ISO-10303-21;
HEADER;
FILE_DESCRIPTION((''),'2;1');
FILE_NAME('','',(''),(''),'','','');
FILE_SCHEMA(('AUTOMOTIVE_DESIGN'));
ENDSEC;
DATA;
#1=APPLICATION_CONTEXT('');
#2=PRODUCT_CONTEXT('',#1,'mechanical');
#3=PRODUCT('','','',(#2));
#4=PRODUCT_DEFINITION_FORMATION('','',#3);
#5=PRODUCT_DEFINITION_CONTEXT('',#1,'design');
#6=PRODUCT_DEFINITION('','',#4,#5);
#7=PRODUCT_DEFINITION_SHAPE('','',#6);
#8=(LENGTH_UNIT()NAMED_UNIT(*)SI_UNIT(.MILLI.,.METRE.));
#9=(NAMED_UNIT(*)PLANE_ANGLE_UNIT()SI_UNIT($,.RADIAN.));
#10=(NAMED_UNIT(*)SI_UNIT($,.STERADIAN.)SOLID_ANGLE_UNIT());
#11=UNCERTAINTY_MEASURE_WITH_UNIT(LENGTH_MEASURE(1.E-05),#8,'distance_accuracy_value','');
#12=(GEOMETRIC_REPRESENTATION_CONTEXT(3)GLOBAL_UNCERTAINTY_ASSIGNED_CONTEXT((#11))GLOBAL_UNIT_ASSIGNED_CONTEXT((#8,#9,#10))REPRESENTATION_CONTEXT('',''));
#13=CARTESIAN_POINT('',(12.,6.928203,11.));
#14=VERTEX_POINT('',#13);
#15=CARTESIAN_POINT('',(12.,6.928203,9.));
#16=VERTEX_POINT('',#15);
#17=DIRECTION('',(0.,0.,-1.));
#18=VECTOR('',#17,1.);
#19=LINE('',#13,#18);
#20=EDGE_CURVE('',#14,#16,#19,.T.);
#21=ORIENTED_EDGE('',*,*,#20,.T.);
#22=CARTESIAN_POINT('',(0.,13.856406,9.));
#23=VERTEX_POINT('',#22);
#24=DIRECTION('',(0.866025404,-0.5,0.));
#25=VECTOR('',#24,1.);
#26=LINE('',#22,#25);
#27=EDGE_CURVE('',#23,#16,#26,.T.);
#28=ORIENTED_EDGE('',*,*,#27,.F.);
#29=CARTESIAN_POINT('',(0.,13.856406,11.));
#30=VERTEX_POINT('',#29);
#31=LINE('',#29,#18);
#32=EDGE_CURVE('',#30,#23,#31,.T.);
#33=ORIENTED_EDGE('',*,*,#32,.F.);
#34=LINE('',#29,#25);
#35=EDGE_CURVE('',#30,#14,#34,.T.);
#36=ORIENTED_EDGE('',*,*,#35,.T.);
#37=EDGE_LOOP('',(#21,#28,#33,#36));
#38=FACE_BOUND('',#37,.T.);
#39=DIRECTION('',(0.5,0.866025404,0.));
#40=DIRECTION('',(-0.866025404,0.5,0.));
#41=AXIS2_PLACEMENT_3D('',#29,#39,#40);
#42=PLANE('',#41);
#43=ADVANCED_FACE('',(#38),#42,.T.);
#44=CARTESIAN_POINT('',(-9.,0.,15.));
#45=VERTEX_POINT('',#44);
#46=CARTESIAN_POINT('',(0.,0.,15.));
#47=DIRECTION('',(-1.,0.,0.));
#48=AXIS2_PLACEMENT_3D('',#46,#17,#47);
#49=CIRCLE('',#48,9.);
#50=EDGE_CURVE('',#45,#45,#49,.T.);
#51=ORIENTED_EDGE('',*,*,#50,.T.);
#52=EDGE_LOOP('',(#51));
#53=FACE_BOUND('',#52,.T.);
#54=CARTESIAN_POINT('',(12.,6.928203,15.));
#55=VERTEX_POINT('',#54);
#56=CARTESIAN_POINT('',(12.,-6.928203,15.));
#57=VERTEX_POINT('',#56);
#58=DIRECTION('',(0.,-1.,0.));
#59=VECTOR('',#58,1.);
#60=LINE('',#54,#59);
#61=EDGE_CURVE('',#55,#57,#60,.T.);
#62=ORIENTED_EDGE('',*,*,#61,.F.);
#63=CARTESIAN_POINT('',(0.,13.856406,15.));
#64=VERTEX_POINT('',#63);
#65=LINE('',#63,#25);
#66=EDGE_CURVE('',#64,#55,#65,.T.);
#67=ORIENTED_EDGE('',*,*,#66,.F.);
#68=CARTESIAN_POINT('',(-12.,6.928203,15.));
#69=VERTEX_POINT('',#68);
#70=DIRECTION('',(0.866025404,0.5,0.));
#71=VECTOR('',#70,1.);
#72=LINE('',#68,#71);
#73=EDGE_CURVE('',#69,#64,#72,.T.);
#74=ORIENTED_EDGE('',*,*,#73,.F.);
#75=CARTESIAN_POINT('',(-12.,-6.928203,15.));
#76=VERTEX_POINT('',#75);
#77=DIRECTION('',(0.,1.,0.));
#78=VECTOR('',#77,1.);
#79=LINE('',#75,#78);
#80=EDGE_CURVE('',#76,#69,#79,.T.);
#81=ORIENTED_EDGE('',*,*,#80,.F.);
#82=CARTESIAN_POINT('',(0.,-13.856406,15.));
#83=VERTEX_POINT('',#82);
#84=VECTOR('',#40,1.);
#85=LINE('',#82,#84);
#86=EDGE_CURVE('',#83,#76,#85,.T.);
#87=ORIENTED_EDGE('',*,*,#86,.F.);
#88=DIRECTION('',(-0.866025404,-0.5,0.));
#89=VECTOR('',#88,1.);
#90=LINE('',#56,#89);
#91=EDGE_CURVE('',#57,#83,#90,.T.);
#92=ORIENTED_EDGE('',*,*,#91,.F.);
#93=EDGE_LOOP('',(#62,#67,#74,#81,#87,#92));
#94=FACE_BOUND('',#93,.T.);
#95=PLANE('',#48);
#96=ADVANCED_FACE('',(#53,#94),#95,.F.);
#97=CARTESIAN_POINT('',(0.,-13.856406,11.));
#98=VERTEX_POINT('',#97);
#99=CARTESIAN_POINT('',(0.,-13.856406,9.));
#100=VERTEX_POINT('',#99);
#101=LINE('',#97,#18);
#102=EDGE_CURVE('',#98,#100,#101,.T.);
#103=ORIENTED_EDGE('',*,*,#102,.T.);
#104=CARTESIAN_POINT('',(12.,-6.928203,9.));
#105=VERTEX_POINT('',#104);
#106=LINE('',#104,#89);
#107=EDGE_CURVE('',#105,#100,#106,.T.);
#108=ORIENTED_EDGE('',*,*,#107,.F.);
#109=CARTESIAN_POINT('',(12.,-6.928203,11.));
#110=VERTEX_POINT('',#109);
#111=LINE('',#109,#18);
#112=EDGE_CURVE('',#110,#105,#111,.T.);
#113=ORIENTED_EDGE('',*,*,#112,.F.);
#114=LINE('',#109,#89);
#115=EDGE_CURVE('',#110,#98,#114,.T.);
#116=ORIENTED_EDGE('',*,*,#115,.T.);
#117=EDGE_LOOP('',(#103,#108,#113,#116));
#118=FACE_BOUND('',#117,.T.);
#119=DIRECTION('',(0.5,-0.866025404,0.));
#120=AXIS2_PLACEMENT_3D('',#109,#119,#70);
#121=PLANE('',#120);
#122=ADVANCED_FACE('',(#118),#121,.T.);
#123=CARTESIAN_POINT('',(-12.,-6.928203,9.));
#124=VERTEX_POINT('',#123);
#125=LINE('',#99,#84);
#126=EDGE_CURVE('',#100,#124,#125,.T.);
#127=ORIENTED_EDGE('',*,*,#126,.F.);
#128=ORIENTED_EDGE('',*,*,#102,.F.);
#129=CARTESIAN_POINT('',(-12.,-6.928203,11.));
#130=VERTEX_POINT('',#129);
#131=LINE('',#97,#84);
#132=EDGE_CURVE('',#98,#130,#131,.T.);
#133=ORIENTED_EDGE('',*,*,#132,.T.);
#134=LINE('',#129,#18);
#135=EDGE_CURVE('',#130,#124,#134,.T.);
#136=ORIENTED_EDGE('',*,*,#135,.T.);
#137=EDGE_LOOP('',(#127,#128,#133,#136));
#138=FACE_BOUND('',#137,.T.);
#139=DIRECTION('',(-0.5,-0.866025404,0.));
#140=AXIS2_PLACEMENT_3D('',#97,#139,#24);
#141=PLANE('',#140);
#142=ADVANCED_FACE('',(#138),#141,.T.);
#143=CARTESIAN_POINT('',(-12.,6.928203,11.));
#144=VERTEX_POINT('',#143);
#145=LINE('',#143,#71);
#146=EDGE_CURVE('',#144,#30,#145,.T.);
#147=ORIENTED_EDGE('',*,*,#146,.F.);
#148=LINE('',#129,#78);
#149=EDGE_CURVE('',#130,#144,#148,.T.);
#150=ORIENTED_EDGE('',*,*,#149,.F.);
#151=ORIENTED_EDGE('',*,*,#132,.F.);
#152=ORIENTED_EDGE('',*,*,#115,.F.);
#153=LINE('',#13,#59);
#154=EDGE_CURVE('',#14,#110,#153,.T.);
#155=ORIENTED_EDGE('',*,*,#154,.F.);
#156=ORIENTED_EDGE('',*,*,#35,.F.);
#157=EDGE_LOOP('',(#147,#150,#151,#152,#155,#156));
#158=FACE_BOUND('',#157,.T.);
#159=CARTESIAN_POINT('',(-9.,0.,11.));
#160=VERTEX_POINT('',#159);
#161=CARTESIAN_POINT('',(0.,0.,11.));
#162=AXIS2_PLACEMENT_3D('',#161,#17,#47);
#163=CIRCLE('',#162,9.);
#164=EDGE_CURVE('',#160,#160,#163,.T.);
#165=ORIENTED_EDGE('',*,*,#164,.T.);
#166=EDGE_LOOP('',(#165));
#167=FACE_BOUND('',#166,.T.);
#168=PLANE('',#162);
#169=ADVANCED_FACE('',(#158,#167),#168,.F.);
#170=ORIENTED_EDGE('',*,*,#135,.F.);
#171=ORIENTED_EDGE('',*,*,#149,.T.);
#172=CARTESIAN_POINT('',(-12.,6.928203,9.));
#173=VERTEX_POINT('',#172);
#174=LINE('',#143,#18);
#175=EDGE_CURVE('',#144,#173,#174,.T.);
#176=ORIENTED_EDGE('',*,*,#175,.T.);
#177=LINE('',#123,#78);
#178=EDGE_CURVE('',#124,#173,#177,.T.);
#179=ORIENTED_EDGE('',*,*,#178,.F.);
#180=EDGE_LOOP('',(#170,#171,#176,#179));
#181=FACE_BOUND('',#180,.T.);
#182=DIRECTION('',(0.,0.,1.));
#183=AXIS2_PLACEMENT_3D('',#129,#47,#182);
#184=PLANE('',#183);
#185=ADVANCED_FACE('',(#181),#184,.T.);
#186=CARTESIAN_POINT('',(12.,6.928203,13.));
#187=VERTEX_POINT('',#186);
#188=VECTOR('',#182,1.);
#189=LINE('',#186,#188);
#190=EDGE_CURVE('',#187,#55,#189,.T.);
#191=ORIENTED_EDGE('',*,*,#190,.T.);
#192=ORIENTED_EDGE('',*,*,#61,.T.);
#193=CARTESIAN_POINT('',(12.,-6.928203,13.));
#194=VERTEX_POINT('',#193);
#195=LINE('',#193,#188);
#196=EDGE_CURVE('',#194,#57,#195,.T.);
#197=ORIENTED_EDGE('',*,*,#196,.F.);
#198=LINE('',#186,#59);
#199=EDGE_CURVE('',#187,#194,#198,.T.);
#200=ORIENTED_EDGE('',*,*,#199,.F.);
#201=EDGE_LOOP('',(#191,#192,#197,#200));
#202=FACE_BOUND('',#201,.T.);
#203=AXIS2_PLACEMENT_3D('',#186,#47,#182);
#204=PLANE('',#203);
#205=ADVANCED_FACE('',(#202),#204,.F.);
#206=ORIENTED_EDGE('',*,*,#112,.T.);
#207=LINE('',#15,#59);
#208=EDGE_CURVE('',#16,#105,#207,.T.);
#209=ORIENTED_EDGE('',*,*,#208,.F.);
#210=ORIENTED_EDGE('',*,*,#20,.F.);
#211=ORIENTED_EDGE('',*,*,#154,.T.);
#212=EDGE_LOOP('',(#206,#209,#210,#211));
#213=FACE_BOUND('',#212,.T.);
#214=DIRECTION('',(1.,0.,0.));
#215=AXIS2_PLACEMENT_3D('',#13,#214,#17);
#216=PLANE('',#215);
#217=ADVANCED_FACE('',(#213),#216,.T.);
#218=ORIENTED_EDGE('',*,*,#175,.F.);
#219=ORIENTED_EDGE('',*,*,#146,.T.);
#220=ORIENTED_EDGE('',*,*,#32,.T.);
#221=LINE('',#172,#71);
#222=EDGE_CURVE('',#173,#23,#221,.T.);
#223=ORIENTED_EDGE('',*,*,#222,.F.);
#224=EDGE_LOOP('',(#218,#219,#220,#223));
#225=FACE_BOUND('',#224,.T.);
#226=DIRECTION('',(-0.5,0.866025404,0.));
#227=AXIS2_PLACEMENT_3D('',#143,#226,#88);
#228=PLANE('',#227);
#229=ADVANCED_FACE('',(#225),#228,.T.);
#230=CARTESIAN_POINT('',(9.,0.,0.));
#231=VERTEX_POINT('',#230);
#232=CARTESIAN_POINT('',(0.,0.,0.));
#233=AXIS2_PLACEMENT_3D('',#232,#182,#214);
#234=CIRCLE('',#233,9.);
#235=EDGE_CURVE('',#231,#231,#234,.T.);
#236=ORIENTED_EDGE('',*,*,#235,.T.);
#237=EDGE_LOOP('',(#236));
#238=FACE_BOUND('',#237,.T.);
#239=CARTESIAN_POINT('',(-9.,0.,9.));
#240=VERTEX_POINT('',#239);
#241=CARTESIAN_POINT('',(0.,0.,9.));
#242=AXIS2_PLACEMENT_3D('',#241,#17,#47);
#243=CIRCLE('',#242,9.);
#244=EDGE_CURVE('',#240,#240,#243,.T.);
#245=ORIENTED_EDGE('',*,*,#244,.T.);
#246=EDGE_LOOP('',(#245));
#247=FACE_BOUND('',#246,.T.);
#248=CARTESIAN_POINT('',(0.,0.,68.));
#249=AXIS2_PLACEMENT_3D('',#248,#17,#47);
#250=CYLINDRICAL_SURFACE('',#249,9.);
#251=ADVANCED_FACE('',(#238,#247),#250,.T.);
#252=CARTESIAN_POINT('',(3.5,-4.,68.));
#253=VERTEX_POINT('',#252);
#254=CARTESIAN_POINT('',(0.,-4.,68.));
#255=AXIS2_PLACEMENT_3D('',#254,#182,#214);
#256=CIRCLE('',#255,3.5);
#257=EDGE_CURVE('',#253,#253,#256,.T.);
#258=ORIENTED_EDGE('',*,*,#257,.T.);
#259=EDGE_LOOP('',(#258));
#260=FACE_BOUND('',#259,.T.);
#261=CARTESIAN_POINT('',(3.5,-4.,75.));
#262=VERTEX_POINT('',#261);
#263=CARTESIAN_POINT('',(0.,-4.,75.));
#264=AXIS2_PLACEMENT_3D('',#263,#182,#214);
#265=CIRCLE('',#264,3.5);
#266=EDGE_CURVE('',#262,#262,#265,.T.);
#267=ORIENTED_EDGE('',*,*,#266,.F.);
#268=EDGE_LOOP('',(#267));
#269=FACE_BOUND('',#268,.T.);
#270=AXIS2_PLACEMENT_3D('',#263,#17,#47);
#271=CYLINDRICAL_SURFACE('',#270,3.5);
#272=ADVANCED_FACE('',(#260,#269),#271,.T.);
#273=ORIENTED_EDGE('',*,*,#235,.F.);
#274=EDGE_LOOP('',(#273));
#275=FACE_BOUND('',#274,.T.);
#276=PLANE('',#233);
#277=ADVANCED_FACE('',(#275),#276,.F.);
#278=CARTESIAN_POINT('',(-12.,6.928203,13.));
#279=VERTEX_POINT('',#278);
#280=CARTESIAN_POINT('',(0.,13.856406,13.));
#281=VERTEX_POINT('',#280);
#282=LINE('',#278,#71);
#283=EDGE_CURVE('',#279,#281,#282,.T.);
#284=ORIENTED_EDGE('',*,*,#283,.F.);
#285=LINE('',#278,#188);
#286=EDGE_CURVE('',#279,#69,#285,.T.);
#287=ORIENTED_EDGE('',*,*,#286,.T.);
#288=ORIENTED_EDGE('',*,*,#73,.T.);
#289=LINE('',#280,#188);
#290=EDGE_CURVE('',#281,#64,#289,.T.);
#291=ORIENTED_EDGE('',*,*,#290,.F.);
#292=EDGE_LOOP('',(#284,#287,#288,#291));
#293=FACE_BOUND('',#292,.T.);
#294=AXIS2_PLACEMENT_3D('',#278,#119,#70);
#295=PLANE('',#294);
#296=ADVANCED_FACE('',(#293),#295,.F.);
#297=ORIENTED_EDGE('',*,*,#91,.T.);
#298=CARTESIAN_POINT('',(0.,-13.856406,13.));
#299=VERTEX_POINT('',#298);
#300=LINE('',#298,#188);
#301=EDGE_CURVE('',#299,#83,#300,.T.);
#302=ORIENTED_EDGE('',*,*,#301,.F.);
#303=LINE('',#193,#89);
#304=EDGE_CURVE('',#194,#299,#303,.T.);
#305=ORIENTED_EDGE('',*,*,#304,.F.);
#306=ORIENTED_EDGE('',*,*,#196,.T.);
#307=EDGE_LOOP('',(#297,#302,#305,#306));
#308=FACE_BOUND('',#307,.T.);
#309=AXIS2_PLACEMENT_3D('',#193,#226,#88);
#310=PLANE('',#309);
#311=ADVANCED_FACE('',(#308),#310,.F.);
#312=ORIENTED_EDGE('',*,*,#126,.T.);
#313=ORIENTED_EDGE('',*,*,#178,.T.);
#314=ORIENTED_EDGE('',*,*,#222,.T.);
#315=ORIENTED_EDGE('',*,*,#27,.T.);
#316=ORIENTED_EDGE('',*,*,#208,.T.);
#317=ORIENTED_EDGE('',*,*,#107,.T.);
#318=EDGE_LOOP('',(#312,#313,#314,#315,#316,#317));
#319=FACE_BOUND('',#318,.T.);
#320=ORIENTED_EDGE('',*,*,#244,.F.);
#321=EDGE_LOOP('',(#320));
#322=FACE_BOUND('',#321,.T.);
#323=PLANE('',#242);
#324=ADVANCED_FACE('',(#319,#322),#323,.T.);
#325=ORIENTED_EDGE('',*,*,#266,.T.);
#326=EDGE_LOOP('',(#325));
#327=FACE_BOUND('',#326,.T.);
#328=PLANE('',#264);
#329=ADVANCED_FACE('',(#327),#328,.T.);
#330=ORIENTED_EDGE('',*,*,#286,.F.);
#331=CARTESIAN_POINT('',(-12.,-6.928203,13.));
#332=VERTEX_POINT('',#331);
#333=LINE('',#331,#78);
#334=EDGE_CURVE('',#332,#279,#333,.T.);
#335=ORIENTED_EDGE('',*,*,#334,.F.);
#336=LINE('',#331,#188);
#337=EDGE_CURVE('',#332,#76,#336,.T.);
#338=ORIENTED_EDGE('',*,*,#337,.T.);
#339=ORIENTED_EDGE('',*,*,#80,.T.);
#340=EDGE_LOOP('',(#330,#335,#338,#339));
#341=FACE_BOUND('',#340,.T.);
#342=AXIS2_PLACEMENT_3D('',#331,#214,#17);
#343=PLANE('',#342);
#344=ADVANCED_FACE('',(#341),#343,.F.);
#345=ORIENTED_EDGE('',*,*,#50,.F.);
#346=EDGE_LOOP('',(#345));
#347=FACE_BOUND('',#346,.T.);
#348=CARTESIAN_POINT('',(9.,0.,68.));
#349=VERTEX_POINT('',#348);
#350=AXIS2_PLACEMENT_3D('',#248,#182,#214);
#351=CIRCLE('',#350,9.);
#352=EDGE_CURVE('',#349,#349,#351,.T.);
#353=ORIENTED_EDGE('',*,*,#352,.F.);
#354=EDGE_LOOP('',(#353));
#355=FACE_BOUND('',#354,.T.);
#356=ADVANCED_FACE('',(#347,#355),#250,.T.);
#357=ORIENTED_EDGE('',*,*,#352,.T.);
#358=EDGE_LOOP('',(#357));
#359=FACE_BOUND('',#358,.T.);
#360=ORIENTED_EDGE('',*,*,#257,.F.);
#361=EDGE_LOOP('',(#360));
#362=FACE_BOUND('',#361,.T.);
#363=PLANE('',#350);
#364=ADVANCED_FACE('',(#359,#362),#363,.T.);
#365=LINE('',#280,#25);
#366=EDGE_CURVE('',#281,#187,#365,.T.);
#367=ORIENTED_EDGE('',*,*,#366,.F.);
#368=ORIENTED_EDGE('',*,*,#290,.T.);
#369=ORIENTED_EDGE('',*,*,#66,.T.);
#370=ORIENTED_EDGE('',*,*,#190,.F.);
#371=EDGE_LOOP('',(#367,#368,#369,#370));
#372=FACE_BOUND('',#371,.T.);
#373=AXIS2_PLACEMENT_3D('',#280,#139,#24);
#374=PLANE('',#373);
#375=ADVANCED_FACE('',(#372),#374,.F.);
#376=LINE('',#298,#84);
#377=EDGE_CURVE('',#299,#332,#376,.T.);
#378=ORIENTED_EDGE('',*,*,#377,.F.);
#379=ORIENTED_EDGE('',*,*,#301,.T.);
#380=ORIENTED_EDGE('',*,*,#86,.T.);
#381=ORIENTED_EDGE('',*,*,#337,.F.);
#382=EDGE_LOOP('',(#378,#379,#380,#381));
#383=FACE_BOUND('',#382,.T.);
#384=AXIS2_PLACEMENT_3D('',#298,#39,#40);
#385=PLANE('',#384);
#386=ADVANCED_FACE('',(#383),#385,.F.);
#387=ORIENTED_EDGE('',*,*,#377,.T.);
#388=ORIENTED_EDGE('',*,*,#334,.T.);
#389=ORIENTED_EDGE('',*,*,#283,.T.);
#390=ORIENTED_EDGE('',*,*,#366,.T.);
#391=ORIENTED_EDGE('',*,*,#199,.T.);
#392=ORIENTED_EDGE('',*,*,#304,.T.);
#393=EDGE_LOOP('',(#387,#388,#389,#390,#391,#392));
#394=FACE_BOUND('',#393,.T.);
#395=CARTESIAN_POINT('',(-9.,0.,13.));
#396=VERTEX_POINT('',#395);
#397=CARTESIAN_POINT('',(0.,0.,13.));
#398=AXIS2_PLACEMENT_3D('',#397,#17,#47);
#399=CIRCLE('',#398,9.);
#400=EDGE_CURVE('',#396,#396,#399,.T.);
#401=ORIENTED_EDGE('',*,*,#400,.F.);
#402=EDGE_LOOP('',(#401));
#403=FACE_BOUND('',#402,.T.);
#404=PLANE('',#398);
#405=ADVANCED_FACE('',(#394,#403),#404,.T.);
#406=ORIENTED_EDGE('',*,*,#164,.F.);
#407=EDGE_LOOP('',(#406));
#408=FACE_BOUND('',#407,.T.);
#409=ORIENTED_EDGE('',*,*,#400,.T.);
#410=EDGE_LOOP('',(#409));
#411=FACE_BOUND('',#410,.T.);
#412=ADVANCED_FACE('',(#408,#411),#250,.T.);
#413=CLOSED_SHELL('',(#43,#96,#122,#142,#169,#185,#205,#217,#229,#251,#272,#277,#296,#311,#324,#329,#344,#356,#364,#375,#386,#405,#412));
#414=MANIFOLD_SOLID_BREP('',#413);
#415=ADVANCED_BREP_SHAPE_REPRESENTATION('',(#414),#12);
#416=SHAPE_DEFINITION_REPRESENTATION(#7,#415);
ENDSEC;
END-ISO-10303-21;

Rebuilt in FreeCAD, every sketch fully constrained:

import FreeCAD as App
import Part
import Sketcher
Q = App.Units.Quantity

doc = App.newDocument("Part")
body = doc.addObject("PartDesign::Body", "Body")

# Sketch on XY plane
sketch1 = body.newObject("Sketcher::SketchObject", "Sketch")
sketch1.AttachmentSupport = (doc.getObject("XY_Plane"), [""])
sketch1.MapMode = "FlatFace"
sketch1.addGeometry(Part.Circle(App.Vector(0, 0, 0), App.Vector(0, 0, 1), 9), False)
sketch1.addConstraint([
    Sketcher.Constraint("Coincident", 0, 3, -1, 1),
    Sketcher.Constraint("Diameter", 0, Q("18 mm")),
])
pad1 = body.newObject("PartDesign::Pad", "Pad")
pad1.Profile = sketch1
pad1.Length = 68

# Sketch on XY plane
sketch2 = body.newObject("Sketcher::SketchObject", "Sketch001")
sketch2.AttachmentSupport = (doc.getObject("XY_Plane"), [""])
sketch2.MapMode = "FlatFace"
sketch2.AttachmentOffset = App.Placement(App.Vector(0, 0, 68), App.Rotation())
sketch2.addGeometry(Part.Circle(App.Vector(0, -4, 0), App.Vector(0, 0, 1), 3.5), False)
sketch2.addConstraint([
    Sketcher.Constraint("PointOnObject", 0, 3, -2),
    Sketcher.Constraint("Diameter", 0, Q("7 mm")),
    Sketcher.Constraint("DistanceY", 0, 3, -1, 1, Q("4 mm")),
])
pad2 = body.newObject("PartDesign::Pad", "Pad001")
pad2.Profile = sketch2
pad2.Length = 7

# Sketch on XY plane
sketch3 = body.newObject("Sketcher::SketchObject", "Sketch002")
sketch3.AttachmentSupport = (doc.getObject("XY_Plane"), [""])
sketch3.MapMode = "FlatFace"
sketch3.AttachmentOffset = App.Placement(App.Vector(0, 0, 9), App.Rotation())
sketch3.addGeometry([
    Part.LineSegment(App.Vector(12, 7, 0), App.Vector(12, -7, 0)),  # 0
    Part.LineSegment(App.Vector(12, -7, 0), App.Vector(0, -14, 0)),  # 1
    Part.LineSegment(App.Vector(0, -14, 0), App.Vector(-12, -7, 0)),  # 2
    Part.LineSegment(App.Vector(-12, -7, 0), App.Vector(-12, 7, 0)),  # 3
    Part.LineSegment(App.Vector(-12, 7, 0), App.Vector(0, 14, 0)),  # 4
    Part.LineSegment(App.Vector(0, 14, 0), App.Vector(12, 7, 0)),  # 5
], False)
sketch3.addConstraint([
    Sketcher.Constraint("Coincident", 0, 2, 1, 1),
    Sketcher.Constraint("Coincident", 1, 2, 2, 1),
    Sketcher.Constraint("Coincident", 2, 2, 3, 1),
    Sketcher.Constraint("Coincident", 3, 2, 4, 1),
    Sketcher.Constraint("Coincident", 4, 2, 5, 1),
    Sketcher.Constraint("Coincident", 5, 2, 0, 1),
    Sketcher.Constraint("Vertical", 0),
    Sketcher.Constraint("Vertical", 3),
    Sketcher.Constraint("Symmetric", 0, 2, 3, 2, -1, 1),
    Sketcher.Constraint("Symmetric", 1, 2, 4, 2, -1, 1),
    Sketcher.Constraint("PointOnObject", 1, 2, -2),
    Sketcher.Constraint("Parallel", 2, 5),
    Sketcher.Constraint("Horizontal", 0, 2, 2, 2),
    Sketcher.Constraint("Angle", 1, Q("-150 deg")),
    Sketcher.Constraint("DistanceX", -1, 1, 0, 2, Q("12 mm")),
    Sketcher.Constraint("DistanceY", 0, 2, 0, 1, Q("13.856406 mm")),
])
pad3 = body.newObject("PartDesign::Pad", "Pad002")
pad3.Profile = sketch3
pad3.Length = 2

# Sketch on XY plane
sketch4 = body.newObject("Sketcher::SketchObject", "Sketch003")
sketch4.AttachmentSupport = (doc.getObject("XY_Plane"), [""])
sketch4.MapMode = "FlatFace"
sketch4.AttachmentOffset = App.Placement(App.Vector(0, 0, 15), App.Rotation())
sketch4.addGeometry([
    Part.LineSegment(App.Vector(12, 7, 0), App.Vector(12, -7, 0)),  # 0
    Part.LineSegment(App.Vector(12, -7, 0), App.Vector(0, -14, 0)),  # 1
    Part.LineSegment(App.Vector(0, -14, 0), App.Vector(-12, -7, 0)),  # 2
    Part.LineSegment(App.Vector(-12, -7, 0), App.Vector(-12, 7, 0)),  # 3
    Part.LineSegment(App.Vector(-12, 7, 0), App.Vector(0, 14, 0)),  # 4
    Part.LineSegment(App.Vector(0, 14, 0), App.Vector(12, 7, 0)),  # 5
], False)
sketch4.addConstraint([
    Sketcher.Constraint("Coincident", 0, 2, 1, 1),
    Sketcher.Constraint("Coincident", 1, 2, 2, 1),
    Sketcher.Constraint("Coincident", 2, 2, 3, 1),
    Sketcher.Constraint("Coincident", 3, 2, 4, 1),
    Sketcher.Constraint("Coincident", 4, 2, 5, 1),
    Sketcher.Constraint("Coincident", 5, 2, 0, 1),
    Sketcher.Constraint("Vertical", 0),
    Sketcher.Constraint("Vertical", 3),
    Sketcher.Constraint("Symmetric", 0, 2, 3, 2, -1, 1),
    Sketcher.Constraint("Symmetric", 1, 2, 4, 2, -1, 1),
    Sketcher.Constraint("PointOnObject", 1, 2, -2),
    Sketcher.Constraint("Parallel", 2, 5),
    Sketcher.Constraint("Horizontal", 0, 2, 2, 2),
    Sketcher.Constraint("Angle", 1, Q("-150 deg")),
    Sketcher.Constraint("DistanceX", -1, 1, 0, 2, Q("12 mm")),
    Sketcher.Constraint("DistanceY", 0, 2, 0, 1, Q("13.856406 mm")),
])
pad4 = body.newObject("PartDesign::Pad", "Pad003")
pad4.Profile = sketch4
pad4.Length = 2
pad4.Reversed = True

doc.recompute()
